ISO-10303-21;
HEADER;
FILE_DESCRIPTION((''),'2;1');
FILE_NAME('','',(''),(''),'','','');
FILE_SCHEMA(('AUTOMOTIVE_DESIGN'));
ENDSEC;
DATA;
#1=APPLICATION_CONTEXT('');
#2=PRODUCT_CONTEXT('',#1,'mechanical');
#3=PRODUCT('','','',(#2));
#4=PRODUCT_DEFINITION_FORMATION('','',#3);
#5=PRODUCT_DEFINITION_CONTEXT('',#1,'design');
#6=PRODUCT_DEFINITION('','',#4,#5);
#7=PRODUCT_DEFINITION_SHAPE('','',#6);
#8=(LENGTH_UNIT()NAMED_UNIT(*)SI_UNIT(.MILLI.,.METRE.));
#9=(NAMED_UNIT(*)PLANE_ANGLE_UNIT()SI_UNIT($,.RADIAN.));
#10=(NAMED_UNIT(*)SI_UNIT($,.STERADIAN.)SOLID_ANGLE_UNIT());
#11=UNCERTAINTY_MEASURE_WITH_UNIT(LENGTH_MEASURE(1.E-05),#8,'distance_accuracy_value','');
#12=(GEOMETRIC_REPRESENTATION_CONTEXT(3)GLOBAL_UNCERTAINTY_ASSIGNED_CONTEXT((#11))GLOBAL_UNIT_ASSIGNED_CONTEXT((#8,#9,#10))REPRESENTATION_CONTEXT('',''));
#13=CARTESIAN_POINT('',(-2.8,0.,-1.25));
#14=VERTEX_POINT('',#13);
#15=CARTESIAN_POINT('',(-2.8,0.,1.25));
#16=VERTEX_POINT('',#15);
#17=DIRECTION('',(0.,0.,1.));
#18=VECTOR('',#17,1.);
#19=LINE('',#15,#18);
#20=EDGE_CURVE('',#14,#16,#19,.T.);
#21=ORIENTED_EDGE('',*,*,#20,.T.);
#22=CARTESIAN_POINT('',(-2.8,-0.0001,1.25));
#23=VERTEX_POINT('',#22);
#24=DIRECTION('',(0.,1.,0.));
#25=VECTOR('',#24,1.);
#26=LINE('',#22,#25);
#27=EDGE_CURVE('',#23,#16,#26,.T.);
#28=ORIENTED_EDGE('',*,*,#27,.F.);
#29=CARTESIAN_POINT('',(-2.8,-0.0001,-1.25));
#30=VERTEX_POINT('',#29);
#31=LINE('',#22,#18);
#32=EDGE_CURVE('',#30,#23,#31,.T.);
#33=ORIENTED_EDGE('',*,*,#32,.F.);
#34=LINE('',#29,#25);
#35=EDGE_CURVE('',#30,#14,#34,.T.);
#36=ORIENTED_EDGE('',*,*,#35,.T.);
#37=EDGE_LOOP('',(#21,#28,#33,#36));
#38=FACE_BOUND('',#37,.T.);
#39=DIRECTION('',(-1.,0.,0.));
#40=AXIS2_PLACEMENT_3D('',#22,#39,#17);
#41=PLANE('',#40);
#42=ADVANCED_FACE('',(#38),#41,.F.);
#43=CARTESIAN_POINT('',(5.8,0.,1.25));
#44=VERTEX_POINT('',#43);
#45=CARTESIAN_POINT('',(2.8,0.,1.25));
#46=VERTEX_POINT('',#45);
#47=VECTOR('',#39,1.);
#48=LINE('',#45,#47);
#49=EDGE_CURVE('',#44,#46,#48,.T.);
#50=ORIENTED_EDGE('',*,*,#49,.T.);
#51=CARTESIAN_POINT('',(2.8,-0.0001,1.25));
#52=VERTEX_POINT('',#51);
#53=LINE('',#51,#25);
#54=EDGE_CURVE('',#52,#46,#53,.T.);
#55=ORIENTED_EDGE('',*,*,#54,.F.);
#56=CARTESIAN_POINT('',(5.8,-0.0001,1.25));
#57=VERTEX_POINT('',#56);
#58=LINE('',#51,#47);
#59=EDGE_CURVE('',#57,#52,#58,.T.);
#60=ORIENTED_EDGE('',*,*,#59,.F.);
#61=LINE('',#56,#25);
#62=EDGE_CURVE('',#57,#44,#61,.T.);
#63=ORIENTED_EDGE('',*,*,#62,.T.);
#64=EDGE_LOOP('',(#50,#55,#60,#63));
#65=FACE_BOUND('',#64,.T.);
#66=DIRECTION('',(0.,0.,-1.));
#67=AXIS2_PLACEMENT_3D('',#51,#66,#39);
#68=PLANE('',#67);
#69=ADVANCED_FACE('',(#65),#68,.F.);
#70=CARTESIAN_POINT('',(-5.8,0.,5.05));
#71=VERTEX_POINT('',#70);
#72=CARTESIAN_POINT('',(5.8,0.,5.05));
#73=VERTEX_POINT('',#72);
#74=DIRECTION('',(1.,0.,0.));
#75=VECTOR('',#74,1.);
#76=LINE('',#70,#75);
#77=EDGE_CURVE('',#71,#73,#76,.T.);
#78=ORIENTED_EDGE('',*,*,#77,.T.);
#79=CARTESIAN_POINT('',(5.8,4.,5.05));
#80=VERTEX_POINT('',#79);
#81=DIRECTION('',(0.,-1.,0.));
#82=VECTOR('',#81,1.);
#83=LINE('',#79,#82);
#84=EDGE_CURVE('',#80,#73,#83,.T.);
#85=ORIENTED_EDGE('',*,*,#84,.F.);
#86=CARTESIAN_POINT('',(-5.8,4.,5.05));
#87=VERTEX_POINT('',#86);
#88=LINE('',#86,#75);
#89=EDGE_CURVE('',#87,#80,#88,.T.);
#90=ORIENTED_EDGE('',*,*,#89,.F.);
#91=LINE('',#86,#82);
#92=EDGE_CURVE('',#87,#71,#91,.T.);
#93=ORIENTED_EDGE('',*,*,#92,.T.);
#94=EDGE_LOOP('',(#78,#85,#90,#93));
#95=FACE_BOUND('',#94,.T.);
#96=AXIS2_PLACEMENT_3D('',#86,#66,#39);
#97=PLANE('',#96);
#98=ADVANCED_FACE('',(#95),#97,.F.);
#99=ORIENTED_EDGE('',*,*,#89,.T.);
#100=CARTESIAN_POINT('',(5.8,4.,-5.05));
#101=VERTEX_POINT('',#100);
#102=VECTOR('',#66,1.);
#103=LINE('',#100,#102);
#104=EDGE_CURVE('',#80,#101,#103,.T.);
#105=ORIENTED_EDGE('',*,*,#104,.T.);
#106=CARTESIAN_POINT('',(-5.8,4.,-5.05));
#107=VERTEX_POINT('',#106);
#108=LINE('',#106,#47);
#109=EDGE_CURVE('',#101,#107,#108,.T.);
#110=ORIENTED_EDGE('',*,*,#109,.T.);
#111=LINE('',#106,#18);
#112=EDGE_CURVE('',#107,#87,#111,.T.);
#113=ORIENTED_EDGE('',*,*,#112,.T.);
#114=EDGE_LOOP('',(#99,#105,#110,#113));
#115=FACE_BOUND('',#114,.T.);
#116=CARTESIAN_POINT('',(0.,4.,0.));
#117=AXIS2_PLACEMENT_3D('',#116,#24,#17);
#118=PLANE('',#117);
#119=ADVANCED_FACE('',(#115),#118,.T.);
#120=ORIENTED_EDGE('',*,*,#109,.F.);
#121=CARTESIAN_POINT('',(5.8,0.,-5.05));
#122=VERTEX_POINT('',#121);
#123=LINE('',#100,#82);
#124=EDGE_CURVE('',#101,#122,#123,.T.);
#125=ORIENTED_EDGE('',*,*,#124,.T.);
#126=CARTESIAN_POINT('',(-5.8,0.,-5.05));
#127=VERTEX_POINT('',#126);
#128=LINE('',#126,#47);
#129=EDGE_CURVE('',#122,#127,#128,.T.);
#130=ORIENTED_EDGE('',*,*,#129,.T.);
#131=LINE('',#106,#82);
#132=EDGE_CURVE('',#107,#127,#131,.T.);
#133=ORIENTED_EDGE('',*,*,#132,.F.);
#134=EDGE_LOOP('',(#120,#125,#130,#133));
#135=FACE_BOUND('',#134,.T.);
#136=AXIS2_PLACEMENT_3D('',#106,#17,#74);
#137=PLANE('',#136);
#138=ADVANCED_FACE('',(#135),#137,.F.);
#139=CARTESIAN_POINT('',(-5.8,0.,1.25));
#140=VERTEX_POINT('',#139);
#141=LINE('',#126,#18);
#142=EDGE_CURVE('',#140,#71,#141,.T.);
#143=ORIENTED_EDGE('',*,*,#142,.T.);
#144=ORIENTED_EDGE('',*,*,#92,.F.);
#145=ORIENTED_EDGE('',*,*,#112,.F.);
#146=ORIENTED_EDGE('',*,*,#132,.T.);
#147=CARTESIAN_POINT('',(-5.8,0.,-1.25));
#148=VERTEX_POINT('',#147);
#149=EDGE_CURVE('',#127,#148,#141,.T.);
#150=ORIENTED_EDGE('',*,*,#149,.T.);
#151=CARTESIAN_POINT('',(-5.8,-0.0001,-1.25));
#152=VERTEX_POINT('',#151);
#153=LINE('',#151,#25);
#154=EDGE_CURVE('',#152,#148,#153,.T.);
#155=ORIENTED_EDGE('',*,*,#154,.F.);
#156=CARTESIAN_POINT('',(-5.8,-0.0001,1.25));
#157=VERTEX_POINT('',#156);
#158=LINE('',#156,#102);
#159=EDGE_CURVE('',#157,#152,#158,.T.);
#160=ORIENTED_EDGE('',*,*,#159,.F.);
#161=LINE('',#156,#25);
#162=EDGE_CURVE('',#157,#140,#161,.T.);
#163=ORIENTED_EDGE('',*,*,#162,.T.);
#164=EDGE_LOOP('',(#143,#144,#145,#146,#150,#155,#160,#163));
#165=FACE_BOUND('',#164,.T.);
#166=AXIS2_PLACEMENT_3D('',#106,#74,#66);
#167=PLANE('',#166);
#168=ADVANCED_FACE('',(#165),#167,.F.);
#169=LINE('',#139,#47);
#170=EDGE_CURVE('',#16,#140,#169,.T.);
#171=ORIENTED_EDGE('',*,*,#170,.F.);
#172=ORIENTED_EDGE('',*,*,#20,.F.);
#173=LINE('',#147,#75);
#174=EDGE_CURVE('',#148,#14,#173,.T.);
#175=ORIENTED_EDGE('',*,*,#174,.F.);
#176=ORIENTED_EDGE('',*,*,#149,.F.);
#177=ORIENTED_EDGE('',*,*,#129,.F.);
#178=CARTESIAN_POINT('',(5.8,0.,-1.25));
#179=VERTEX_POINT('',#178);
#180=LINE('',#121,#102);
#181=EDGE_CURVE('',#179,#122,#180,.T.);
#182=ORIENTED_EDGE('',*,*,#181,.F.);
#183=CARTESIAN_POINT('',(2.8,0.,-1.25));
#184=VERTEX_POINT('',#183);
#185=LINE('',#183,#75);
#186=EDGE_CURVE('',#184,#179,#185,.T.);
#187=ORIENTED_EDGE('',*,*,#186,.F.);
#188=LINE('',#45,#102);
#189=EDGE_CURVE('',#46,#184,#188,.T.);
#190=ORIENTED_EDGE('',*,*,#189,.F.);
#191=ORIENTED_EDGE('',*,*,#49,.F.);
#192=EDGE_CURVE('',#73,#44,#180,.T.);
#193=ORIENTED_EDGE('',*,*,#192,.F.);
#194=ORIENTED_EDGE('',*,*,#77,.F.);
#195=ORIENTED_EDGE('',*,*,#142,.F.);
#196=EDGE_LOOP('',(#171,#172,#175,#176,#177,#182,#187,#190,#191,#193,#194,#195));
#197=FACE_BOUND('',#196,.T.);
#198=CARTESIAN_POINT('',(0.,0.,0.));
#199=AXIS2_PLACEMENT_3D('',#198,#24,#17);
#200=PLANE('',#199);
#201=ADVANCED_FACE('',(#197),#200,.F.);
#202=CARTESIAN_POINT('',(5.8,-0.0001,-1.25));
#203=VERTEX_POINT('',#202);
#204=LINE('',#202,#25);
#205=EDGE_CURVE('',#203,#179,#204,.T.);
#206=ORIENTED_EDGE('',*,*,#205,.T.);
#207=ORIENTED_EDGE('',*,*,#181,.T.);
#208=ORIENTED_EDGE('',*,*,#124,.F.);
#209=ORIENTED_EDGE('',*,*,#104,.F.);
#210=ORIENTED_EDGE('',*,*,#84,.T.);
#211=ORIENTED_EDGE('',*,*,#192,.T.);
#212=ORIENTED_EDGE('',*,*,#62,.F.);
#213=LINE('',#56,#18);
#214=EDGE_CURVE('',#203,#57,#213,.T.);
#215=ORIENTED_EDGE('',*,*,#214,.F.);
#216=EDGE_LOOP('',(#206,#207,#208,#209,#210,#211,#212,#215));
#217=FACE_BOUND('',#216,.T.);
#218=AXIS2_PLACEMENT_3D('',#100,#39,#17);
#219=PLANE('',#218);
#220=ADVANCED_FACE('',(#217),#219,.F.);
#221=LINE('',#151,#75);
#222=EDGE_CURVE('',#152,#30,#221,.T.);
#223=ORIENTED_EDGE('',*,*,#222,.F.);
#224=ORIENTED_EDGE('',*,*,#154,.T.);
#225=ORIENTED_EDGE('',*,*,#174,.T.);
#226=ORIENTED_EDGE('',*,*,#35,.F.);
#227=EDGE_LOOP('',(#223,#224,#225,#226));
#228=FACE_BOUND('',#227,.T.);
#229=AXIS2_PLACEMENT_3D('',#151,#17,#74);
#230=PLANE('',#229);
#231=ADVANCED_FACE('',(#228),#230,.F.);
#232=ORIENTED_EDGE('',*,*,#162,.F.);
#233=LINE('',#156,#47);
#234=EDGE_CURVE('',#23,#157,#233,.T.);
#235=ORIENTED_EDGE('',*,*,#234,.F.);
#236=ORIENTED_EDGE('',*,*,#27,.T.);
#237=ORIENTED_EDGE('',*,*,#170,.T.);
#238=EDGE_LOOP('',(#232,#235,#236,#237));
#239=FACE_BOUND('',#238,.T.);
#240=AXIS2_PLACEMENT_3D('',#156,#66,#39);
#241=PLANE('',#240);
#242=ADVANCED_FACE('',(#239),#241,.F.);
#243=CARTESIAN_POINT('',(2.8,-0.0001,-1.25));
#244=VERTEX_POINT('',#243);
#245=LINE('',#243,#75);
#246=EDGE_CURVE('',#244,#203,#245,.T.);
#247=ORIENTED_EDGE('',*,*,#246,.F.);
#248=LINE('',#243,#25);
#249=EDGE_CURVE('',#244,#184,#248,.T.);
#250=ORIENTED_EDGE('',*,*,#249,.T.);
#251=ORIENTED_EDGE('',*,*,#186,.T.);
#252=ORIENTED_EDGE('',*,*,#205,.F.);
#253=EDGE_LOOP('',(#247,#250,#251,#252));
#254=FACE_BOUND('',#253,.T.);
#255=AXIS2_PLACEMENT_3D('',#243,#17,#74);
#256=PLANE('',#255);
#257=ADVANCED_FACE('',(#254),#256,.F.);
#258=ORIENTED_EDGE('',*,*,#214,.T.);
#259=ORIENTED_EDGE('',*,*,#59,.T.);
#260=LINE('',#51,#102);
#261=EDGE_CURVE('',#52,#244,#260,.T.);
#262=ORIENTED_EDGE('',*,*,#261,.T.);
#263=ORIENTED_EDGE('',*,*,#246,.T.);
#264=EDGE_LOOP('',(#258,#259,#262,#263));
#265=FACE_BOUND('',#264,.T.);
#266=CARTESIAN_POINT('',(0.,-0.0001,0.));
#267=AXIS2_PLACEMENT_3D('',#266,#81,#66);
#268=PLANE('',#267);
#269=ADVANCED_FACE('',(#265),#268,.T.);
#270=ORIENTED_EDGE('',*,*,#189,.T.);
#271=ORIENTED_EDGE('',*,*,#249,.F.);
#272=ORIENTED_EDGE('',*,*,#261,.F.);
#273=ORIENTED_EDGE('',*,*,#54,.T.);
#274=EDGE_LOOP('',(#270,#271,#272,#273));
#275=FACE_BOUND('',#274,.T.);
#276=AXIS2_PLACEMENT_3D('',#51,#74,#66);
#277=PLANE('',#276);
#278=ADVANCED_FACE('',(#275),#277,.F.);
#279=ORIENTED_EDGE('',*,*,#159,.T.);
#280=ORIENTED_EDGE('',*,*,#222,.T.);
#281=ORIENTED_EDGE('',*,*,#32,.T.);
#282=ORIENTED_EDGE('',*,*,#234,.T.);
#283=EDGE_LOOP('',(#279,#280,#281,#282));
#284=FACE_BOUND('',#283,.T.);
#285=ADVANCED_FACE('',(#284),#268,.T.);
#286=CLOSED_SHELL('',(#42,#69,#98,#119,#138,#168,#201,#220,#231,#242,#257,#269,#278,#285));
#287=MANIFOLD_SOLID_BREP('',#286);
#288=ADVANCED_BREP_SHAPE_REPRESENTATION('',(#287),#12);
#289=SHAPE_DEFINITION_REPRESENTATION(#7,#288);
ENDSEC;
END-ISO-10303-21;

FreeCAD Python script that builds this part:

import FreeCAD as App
import Part
import Sketcher


def add_polygon(sketch, points):
    """Adds a closed chain of lines whose ends are joined by coincident constraints."""
    first, n = sketch.GeometryCount, len(points)
    for a, b in zip(points, points[1:] + points[:1]):
        sketch.addGeometry(Part.LineSegment(App.Vector(*a, 0), App.Vector(*b, 0)), False)
    for i in range(n):
        sketch.addConstraint(Sketcher.Constraint("Coincident", first + i, 2, first + (i + 1) % n, 1))

doc = App.newDocument("Part")
body = doc.addObject("PartDesign::Body", "Body")

sketch1 = body.newObject("Sketcher::SketchObject", "Sketch")
sketch1.AttachmentSupport = (doc.getObject("XZ_Plane"), [""])
sketch1.MapMode = "FlatFace"
add_polygon(sketch1, [(-5.8, -5.05), (-5.8, 5.05), (5.8, 5.05), (5.8, -5.05)])
sketch1.addConstraint([
    Sketcher.Constraint("Vertical", 0),
    Sketcher.Constraint("Horizontal", 1),
    Sketcher.Constraint("Vertical", 2),
    Sketcher.Constraint("Horizontal", 3),
    Sketcher.Constraint("Symmetric", 0, 2, 2, 2, -1, 1),
    Sketcher.Constraint("DistanceX", 1, 1, 1, 2, 11.6),
    Sketcher.Constraint("DistanceY", 0, 1, 0, 2, 10.1),
])
pad1 = body.newObject("PartDesign::Pad", "Pad")
pad1.Profile = sketch1
pad1.Length = 4
pad1.Reversed = True

sketch2 = body.newObject("Sketcher::SketchObject", "Sketch001")
sketch2.AttachmentSupport = (doc.getObject("XZ_Plane"), [""])
sketch2.MapMode = "FlatFace"
add_polygon(sketch2, [(-5.8, 1.25), (-5.8, -1.25), (-2.8, -1.25), (-2.8, 1.25)])
add_polygon(sketch2, [(2.8, 1.25), (2.8, -1.25), (5.8, -1.25), (5.8, 1.25)])
sketch2.addConstraint([
    Sketcher.Constraint("Vertical", 0),
    Sketcher.Constraint("Horizontal", 1),
    Sketcher.Constraint("Vertical", 2),
    Sketcher.Constraint("Horizontal", 3),
    Sketcher.Constraint("Vertical", 4),
    Sketcher.Constraint("Horizontal", 5),
    Sketcher.Constraint("Vertical", 6),
    Sketcher.Constraint("Horizontal", 7),
    Sketcher.Constraint("Symmetric", 2, 2, 4, 2, -1, 1),
    Sketcher.Constraint("Symmetric", 0, 2, 6, 2, -1, 1),
    Sketcher.Constraint("Horizontal", 1, 2, 4, 2),
    Sketcher.Constraint("DistanceX", 1, 1, 1, 2, 3.0),
    Sketcher.Constraint("DistanceY", 0, 2, 0, 1, 2.5),
    Sketcher.Constraint("DistanceX", 0, 2, -1, 1, 5.8),
])
pad2 = body.newObject("PartDesign::Pad", "Pad001")
pad2.Profile = sketch2
pad2.Length = 0.0001

doc.recompute()
